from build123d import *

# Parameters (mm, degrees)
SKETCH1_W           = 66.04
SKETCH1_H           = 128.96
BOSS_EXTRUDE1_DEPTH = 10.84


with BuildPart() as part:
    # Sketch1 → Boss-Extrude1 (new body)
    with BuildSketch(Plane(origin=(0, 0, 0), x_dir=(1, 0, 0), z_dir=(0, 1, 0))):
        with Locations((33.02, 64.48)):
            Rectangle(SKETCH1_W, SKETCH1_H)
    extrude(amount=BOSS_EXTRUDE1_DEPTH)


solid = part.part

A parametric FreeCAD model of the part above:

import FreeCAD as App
import Part
import Sketcher
from FreeCAD import Vector
Q = App.Units.Quantity

doc = App.newDocument("Part")
body = doc.addObject("PartDesign::Body", "Body")

# Sketch on XZ plane
sketch1 = body.newObject("Sketcher::SketchObject", "Sketch")
sketch1.AttachmentSupport = (doc.getObject("XZ_Plane"), [""])
sketch1.MapMode = "FlatFace"
sketch1.addGeometry([
    Part.LineSegment(Vector(0, -129, 0), Vector(0, 0, 0)),
    Part.LineSegment(Vector(0, 0, 0), Vector(66, 0, 0)),
    Part.LineSegment(Vector(66, 0, 0), Vector(66, -129, 0)),
    Part.LineSegment(Vector(66, -129, 0), Vector(0, -129, 0)),
], False)
sketch1.addConstraint([
    Sketcher.Constraint("Coincident", 0, 2, 1, 1),
    Sketcher.Constraint("Coincident", 1, 2, 2, 1),
    Sketcher.Constraint("Coincident", 2, 2, 3, 1),
    Sketcher.Constraint("Coincident", 3, 2, 0, 1),
    Sketcher.Constraint("Vertical", 0),
    Sketcher.Constraint("Horizontal", 1),
    Sketcher.Constraint("Vertical", 2),
    Sketcher.Constraint("Horizontal", 3),
    Sketcher.Constraint("Coincident", 0, 2, -1, 1),
    Sketcher.Constraint("DistanceX", 1, 1, 1, 2, Q("2.6 in")),
    Sketcher.Constraint("DistanceY", 0, 1, 0, 2, 128.96),
])
pad1 = body.newObject("PartDesign::Pad", "Pad")
pad1.Profile = sketch1
pad1.Length = 10.84
pad1.Reversed = True

doc.recompute()
